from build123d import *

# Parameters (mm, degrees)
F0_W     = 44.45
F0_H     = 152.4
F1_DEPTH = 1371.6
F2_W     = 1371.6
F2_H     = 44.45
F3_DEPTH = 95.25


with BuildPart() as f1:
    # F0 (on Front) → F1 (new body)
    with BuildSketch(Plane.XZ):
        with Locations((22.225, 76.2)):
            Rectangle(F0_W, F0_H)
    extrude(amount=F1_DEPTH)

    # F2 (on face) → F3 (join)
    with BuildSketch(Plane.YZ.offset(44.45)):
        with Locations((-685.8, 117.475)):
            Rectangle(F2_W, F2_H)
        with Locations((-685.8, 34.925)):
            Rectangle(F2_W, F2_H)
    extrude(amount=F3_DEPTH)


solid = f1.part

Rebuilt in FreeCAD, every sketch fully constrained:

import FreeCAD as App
import Part
import Sketcher

V = App.Vector
Q = App.Units.Quantity


def add_polygon(sketch, points):
    """Adds a closed chain of lines whose ends are joined by coincident constraints."""
    first, n = sketch.GeometryCount, len(points)
    for a, b in zip(points, points[1:] + points[:1]):
        sketch.addGeometry(Part.LineSegment(App.Vector(*a, 0), App.Vector(*b, 0)), False)
    for i in range(n):
        sketch.addConstraint(Sketcher.Constraint("Coincident", first + i, 2, first + (i + 1) % n, 1))

doc = App.newDocument("Part")
body = doc.addObject("PartDesign::Body", "Body")

sketch1 = body.newObject("Sketcher::SketchObject", "Sketch")
sketch1.AttachmentSupport = (doc.getObject("XZ_Plane"), [""])
sketch1.MapMode = "FlatFace"
add_polygon(sketch1, [(0, 152), (0, 0), (44, 0), (44, 152)])
sketch1.addConstraint([
    Sketcher.Constraint("Vertical", 0),
    Sketcher.Constraint("Horizontal", 1),
    Sketcher.Constraint("Vertical", 2),
    Sketcher.Constraint("Horizontal", 3),
    Sketcher.Constraint("Coincident", 0, 2, -1, 1),
    Sketcher.Constraint("DistanceY", 0, 2, 0, 1, Q("6 in")),
    Sketcher.Constraint("DistanceX", 1, 1, 1, 2, Q("1.75 in")),
])
pad1 = body.newObject("PartDesign::Pad", "Pad")
pad1.Profile = sketch1
pad1.Length = Q("54 in")

sketch2 = body.newObject("Sketcher::SketchObject", "Sketch001")
sketch2.AttachmentSupport = (doc.getObject("YZ_Plane"), [""])
sketch2.MapMode = "FlatFace"
sketch2.AttachmentOffset = App.Placement(V(0, 0, 1.75 * 25.4), App.Rotation())
add_polygon(sketch2, [(-1372, 140), (-1372, 95), (0, 95), (0, 140)])
add_polygon(sketch2, [(-1372, 57), (-1372, 13), (0, 13), (0, 57)])
sketch2.addConstraint([
    Sketcher.Constraint("Vertical", 0),
    Sketcher.Constraint("Horizontal", 1),
    Sketcher.Constraint("Vertical", 2),
    Sketcher.Constraint("Horizontal", 3),
    Sketcher.Constraint("Vertical", 4),
    Sketcher.Constraint("Horizontal", 5),
    Sketcher.Constraint("Vertical", 6),
    Sketcher.Constraint("Horizontal", 7),
    Sketcher.Constraint("PointOnObject", 1, 2, -2),
    Sketcher.Constraint("PointOnObject", 5, 2, -2),
    Sketcher.Constraint("Vertical", 3, 2, 4, 2),
    Sketcher.Constraint("Equal", 2, 4),
    Sketcher.Constraint("DistanceX", 1, 1, 1, 2, Q("54 in")),
    Sketcher.Constraint("DistanceY", 4, 2, 3, 2, Q("5 in")),
    Sketcher.Constraint("DistanceY", 0, 2, 0, 1, Q("1.75 in")),
    Sketcher.Constraint("DistanceY", -1, 1, 2, 2, Q("5.5 in")),
])
pad2 = body.newObject("PartDesign::Pad", "Pad001")
pad2.Profile = sketch2
pad2.Length = Q("3.75 in")

doc.recompute()
